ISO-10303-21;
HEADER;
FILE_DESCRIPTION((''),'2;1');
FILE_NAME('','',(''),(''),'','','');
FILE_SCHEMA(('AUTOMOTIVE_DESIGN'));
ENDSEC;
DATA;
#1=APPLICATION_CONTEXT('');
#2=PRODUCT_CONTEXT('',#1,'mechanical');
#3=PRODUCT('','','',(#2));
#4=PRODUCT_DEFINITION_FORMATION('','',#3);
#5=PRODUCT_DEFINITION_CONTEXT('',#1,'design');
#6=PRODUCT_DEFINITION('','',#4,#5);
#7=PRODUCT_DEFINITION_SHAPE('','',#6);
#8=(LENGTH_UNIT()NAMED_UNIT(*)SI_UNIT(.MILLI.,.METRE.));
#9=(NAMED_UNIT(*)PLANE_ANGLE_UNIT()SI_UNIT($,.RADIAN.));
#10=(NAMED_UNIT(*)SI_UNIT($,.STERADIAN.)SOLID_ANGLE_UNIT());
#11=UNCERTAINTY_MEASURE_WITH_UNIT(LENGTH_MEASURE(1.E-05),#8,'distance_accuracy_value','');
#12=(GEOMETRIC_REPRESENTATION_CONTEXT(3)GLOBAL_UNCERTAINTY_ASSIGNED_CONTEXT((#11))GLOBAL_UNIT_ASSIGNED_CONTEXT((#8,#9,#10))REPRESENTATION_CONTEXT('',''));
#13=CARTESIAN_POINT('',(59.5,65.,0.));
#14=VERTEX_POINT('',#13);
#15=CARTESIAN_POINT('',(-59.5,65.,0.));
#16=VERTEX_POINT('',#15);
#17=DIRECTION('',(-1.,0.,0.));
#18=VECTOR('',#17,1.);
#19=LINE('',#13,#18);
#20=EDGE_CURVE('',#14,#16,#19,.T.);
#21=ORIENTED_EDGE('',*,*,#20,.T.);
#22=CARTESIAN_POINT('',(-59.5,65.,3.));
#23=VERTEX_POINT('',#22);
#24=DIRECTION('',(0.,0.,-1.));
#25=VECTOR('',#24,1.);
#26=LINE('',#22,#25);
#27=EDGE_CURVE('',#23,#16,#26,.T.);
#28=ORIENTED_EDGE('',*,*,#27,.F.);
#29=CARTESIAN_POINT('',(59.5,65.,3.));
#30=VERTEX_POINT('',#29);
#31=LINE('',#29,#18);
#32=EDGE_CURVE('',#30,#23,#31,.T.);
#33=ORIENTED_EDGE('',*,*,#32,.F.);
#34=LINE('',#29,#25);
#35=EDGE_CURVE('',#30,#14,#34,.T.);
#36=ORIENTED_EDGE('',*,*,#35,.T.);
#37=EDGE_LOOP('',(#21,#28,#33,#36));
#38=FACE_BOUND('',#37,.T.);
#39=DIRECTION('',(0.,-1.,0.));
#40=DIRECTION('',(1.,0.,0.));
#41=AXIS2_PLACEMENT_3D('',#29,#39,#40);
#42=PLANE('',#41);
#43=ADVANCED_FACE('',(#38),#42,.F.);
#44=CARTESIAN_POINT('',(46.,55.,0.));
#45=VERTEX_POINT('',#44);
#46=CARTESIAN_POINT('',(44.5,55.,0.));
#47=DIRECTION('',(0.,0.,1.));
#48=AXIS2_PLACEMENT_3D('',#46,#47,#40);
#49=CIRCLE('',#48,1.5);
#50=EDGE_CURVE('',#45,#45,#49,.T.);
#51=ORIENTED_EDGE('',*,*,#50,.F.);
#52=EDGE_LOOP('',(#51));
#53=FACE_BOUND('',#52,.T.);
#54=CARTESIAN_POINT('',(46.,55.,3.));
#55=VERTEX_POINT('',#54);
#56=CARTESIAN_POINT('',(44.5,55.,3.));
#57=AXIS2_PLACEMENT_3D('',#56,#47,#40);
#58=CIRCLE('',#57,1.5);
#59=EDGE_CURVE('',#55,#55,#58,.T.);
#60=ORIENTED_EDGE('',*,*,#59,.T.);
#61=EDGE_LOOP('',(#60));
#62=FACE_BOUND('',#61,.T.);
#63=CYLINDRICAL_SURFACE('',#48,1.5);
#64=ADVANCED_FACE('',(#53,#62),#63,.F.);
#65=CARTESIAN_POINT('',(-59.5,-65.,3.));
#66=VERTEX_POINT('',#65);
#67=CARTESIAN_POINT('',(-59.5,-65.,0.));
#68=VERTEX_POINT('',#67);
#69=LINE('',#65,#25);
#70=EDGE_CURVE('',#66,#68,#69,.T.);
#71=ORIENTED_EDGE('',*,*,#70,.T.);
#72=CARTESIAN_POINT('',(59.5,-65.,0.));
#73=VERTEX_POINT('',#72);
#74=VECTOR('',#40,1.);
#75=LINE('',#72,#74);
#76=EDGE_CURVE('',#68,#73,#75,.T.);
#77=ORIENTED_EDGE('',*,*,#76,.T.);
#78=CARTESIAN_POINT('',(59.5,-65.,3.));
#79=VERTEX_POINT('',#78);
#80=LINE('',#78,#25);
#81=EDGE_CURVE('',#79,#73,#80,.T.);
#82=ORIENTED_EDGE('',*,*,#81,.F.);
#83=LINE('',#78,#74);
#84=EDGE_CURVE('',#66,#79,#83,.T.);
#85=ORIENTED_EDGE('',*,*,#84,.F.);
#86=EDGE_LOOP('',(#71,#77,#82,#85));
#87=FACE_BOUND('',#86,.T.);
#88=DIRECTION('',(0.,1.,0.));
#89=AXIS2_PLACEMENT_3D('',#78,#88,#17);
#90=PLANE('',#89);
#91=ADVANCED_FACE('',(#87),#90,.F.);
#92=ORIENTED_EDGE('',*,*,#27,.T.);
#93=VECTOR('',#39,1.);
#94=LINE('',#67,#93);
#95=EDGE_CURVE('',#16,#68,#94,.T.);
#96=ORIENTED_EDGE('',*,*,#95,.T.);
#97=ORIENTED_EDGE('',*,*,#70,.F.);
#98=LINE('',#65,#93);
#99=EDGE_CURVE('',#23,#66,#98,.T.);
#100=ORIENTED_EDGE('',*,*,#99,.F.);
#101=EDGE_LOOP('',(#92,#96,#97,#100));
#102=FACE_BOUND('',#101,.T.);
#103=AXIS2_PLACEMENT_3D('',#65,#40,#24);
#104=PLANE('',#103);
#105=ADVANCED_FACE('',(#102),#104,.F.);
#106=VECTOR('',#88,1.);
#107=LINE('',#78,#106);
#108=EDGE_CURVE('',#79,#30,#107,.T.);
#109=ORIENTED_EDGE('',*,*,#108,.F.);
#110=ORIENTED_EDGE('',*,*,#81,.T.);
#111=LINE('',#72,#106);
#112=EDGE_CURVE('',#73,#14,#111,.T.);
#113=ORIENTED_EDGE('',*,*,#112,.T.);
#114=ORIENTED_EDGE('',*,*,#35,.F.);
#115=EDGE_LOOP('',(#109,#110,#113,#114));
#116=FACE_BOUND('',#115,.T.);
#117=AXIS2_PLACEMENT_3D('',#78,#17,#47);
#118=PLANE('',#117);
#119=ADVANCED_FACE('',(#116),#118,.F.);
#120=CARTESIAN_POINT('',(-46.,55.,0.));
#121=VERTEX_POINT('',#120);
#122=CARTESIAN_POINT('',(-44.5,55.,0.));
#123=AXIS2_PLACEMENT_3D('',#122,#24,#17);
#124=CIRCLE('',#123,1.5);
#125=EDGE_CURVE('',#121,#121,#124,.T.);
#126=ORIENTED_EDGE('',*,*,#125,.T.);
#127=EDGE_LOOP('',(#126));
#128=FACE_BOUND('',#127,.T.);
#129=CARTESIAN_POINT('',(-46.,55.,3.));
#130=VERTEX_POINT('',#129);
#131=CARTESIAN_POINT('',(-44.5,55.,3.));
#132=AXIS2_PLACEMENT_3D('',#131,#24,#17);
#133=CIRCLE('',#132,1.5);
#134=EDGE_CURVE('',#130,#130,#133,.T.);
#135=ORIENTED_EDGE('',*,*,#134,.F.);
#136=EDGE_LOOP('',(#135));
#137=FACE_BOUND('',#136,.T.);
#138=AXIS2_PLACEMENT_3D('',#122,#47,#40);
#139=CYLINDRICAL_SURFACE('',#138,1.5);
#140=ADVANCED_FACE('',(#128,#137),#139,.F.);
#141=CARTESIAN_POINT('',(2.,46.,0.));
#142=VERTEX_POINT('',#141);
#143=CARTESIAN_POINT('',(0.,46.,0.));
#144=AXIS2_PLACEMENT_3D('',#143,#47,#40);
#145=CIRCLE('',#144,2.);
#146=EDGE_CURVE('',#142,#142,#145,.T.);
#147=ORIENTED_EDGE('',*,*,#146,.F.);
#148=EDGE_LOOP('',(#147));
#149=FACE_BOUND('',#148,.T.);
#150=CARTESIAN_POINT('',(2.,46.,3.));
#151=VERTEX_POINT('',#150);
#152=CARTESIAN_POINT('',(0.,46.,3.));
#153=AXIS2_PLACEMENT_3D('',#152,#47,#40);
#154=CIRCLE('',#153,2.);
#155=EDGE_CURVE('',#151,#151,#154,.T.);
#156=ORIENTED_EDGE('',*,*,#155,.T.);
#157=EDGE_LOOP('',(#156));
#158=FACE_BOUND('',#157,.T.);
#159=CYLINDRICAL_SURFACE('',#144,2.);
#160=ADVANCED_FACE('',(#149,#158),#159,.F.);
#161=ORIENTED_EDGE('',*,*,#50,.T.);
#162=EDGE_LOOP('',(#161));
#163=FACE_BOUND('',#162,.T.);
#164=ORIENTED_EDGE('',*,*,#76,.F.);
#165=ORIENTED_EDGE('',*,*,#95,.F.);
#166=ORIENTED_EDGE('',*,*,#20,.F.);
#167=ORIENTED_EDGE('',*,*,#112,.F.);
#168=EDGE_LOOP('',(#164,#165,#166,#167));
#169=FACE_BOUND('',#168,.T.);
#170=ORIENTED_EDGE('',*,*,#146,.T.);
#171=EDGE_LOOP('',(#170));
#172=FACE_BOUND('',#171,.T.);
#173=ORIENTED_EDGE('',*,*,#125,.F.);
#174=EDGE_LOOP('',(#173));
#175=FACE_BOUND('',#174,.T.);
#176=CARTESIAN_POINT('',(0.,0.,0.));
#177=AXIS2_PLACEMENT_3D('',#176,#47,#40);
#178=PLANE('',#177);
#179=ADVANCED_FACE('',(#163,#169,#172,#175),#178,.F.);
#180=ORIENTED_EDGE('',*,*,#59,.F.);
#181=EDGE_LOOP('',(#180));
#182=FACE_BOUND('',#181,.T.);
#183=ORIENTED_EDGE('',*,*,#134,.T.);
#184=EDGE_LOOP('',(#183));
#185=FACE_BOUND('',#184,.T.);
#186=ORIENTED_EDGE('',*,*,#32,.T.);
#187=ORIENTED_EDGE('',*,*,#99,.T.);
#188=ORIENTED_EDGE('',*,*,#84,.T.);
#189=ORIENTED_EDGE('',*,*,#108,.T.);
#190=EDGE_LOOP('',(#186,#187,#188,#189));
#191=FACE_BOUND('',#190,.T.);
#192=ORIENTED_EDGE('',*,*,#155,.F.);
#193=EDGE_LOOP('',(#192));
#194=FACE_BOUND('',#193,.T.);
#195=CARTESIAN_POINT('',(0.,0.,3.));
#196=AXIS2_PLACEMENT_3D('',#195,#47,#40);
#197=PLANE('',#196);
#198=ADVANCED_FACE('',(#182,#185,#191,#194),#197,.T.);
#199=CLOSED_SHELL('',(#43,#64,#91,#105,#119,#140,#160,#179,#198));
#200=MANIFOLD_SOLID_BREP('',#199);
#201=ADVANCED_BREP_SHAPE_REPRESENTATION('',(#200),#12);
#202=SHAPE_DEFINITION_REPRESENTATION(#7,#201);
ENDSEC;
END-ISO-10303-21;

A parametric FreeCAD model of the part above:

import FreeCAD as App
import Part
import Sketcher

V = App.Vector
Q = App.Units.Quantity

doc = App.newDocument("Part")
params = doc.addObject("Spreadsheet::Sheet", "Params")
for row, (alias, value) in enumerate([
    ("sketch1_width", "119 mm"),
    ("sketch1_height", "130 mm"),
    ("pad1_length", "3 mm"),
    ("sketch2_diameter", "3 mm"),
    ("sketch3_diameter", "4 mm"),
], start=1):
    params.set(f"A{row}", alias)
    params.set(f"B{row}", "=" + value)
    params.setAlias(f"B{row}", alias)

body = doc.addObject("PartDesign::Body", "Body")

# Sketch on XY plane
sketch1 = doc.addObject("Sketcher::SketchObject", "Sketch")
body.addObject(sketch1)
sketch1.AttachmentSupport = (doc.XY_Plane, [""])
sketch1.MapMode = "FlatFace"
sketch1.addGeometry([
    Part.LineSegment(V(-60, 65, 0), V(-60, -65, 0)),
    Part.LineSegment(V(-60, -65, 0), V(60, -65, 0)),
    Part.LineSegment(V(60, -65, 0), V(60, 65, 0)),
    Part.LineSegment(V(60, 65, 0), V(-60, 65, 0)),
], False)
sketch1.addConstraint([
    Sketcher.Constraint("Coincident", 0, 2, 1, 1),
    Sketcher.Constraint("Coincident", 1, 2, 2, 1),
    Sketcher.Constraint("Coincident", 2, 2, 3, 1),
    Sketcher.Constraint("Coincident", 3, 2, 0, 1),
    Sketcher.Constraint("Vertical", 0),
    Sketcher.Constraint("Horizontal", 1),
    Sketcher.Constraint("Vertical", 2),
    Sketcher.Constraint("Horizontal", 3),
    Sketcher.Constraint("Symmetric", 0, 2, 2, 2, -1, 1),
    Sketcher.Constraint("DistanceX", 1, 1, 1, 2, Q("119 mm")),
    Sketcher.Constraint("DistanceY", 0, 2, 0, 1, Q("130 mm")),
])
sketch1.setExpression("Constraints[9]", "Params.sketch1_width")
sketch1.setExpression("Constraints[10]", "Params.sketch1_height")
pad1 = doc.addObject("PartDesign::Pad", "Pad")
body.addObject(pad1)
pad1.Profile = sketch1
pad1.setExpression("Length", "Params.pad1_length")

# Sketch on XY plane
sketch2 = doc.addObject("Sketcher::SketchObject", "Sketch001")
body.addObject(sketch2)
sketch2.AttachmentSupport = (doc.XY_Plane, [""])
sketch2.MapMode = "FlatFace"
sketch2.AttachmentOffset = App.Placement(V(0, 0, 3), App.Rotation())
sketch2.addGeometry([
    Part.Circle(V(44.5, 55, 0), V(0, 0, 1), 1.5),
    Part.Circle(V(-44.5, 55, 0), V(0, 0, 1), 1.5),
], False)
sketch2.addConstraint([
    Sketcher.Constraint("Equal", 0, 1),
    Sketcher.Constraint("Symmetric", 0, 3, 1, 3, -2),
    Sketcher.Constraint("Diameter", 0, Q("3 mm")),
    Sketcher.Constraint("DistanceY", -1, 1, 0, 3, Q("55 mm")),
    Sketcher.Constraint("DistanceX", 1, 3, 0, 3, Q("89 mm")),
])
sketch2.setExpression("Constraints[2]", "Params.sketch2_diameter")
pocket1 = doc.addObject("PartDesign::Pocket", "Pocket")
body.addObject(pocket1)
pocket1.Profile = sketch2
pocket1.Type = "ThroughAll"

# Sketch on XY plane
sketch3 = doc.addObject("Sketcher::SketchObject", "Sketch002")
body.addObject(sketch3)
sketch3.AttachmentSupport = (doc.XY_Plane, [""])
sketch3.MapMode = "FlatFace"
sketch3.AttachmentOffset = App.Placement(V(0, 0, 3), App.Rotation())
sketch3.addGeometry(Part.Circle(V(0, 46, 0), V(0, 0, 1), 2), False)
sketch3.addConstraint([
    Sketcher.Constraint("PointOnObject", 0, 3, -2),
    Sketcher.Constraint("Diameter", 0, Q("4 mm")),
    Sketcher.Constraint("DistanceY", -1, 1, 0, 3, Q("46 mm")),
])
sketch3.setExpression("Constraints[1]", "Params.sketch3_diameter")
pocket2 = doc.addObject("PartDesign::Pocket", "Pocket001")
body.addObject(pocket2)
pocket2.Profile = sketch3
pocket2.Type = "ThroughAll"

doc.recompute()
